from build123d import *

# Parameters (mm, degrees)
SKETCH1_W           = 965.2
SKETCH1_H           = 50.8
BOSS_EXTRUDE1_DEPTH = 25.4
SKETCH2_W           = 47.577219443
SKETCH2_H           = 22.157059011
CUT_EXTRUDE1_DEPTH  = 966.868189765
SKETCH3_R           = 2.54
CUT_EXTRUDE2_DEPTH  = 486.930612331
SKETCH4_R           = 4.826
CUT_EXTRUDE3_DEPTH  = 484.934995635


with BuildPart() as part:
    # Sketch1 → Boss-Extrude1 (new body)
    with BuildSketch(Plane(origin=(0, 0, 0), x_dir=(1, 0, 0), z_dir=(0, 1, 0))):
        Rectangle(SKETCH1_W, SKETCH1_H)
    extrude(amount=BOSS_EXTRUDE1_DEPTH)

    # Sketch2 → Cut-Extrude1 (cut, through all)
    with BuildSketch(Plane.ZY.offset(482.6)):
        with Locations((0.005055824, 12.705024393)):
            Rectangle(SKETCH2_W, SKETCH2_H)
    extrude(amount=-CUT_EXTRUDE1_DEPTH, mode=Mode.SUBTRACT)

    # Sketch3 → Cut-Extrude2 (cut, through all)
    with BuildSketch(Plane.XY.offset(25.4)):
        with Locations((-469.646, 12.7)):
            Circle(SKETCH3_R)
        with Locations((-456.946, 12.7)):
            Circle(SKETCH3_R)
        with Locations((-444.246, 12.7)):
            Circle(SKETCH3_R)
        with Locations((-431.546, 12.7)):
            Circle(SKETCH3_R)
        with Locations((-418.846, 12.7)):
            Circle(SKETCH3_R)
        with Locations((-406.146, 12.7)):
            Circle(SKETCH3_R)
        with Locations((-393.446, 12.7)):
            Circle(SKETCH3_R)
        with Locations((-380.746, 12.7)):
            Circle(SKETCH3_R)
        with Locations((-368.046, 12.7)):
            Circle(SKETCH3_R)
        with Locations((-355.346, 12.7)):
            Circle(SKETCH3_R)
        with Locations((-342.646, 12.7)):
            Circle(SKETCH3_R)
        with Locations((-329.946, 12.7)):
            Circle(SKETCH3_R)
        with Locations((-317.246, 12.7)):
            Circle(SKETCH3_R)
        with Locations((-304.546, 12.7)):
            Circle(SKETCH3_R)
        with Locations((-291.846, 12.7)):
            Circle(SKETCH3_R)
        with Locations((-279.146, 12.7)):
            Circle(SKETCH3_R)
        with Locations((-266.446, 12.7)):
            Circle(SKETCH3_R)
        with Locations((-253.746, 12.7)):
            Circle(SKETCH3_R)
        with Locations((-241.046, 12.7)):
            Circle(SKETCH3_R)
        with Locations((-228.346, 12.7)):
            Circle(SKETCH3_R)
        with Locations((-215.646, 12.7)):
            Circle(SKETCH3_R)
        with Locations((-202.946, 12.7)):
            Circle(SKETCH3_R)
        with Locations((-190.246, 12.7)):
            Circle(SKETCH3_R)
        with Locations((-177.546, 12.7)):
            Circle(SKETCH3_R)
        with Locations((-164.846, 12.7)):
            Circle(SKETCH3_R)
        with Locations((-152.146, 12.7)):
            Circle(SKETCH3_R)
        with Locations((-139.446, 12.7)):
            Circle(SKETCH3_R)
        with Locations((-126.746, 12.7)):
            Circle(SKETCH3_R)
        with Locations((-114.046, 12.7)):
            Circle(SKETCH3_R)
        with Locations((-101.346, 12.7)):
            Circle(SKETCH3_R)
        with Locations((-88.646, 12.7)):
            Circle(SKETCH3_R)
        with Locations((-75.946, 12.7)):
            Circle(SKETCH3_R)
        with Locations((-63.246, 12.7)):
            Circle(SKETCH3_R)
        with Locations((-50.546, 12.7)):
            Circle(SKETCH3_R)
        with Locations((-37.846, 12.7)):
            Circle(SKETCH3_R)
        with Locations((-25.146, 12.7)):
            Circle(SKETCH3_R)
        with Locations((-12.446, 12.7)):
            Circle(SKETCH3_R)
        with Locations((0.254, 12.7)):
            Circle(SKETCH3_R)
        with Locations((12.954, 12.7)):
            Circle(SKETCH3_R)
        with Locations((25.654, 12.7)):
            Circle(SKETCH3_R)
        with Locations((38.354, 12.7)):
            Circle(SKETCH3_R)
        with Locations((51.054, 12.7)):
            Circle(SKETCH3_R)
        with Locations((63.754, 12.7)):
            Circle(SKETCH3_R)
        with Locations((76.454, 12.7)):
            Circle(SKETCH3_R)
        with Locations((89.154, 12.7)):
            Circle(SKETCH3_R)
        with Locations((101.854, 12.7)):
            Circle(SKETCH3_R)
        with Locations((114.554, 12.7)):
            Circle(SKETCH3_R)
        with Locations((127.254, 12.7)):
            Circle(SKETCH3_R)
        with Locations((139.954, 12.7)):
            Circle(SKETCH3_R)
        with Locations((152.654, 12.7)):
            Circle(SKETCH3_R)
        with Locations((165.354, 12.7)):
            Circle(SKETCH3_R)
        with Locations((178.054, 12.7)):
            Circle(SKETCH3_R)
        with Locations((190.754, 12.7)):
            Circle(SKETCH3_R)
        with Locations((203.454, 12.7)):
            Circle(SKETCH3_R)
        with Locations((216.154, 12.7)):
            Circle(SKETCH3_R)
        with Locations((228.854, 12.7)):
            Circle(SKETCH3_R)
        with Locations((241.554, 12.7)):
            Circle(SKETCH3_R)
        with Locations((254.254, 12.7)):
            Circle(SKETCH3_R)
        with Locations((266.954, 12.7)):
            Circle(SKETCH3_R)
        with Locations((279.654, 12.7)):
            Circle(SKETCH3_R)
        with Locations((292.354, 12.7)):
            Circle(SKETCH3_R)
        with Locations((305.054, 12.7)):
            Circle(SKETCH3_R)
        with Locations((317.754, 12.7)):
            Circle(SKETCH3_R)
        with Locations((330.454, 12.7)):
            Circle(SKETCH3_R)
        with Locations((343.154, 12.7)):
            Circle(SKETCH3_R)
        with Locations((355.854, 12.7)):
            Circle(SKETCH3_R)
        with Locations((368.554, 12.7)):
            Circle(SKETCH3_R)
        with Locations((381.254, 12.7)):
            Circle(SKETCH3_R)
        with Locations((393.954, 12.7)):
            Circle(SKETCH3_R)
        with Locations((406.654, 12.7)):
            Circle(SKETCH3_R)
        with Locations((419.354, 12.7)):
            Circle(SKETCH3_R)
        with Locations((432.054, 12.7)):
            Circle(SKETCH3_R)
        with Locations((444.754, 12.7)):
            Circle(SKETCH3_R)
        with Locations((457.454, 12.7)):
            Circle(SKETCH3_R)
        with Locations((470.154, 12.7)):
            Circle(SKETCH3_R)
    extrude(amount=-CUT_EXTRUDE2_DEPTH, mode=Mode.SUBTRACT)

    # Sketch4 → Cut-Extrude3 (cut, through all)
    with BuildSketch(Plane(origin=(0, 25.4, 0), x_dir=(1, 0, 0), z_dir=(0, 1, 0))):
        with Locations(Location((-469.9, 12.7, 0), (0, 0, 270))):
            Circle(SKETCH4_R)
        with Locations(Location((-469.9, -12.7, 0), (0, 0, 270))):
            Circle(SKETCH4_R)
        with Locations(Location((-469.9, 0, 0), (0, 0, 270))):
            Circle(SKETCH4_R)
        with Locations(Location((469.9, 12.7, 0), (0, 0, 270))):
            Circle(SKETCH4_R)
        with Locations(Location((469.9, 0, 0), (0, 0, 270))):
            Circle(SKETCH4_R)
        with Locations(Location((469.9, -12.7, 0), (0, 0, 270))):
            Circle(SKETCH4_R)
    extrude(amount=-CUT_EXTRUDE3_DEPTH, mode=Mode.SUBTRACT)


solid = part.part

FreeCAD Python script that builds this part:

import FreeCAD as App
import Part
import Sketcher
Q = App.Units.Quantity

doc = App.newDocument("Part")
params = doc.addObject("Spreadsheet::Sheet", "Params")
for row, (alias, value) in enumerate([
    ("sketch1_width", "38 in"),
    ("sketch1_height", "2 in"),
    ("pad1_length", "1 in"),
    ("sketch3_diameter", "0.2 in"),
    ("sketch4_diameter", "0.38 in"),
], start=1):
    params.set(f"A{row}", alias)
    params.set(f"B{row}", "=" + value)
    params.setAlias(f"B{row}", alias)

body = doc.addObject("PartDesign::Body", "Body")

# Sketch on XZ plane
sketch1 = doc.addObject("Sketcher::SketchObject", "Sketch")
body.addObject(sketch1)
sketch1.AttachmentSupport = (doc.XZ_Plane, [""])
sketch1.MapMode = "FlatFace"
sketch1.addGeometry([
    Part.LineSegment(App.Vector(-483, -25, 0), App.Vector(-483, 25, 0)),
    Part.LineSegment(App.Vector(-483, 25, 0), App.Vector(483, 25, 0)),
    Part.LineSegment(App.Vector(483, 25, 0), App.Vector(483, -25, 0)),
    Part.LineSegment(App.Vector(483, -25, 0), App.Vector(-483, -25, 0)),
], False)
sketch1.addConstraint([
    Sketcher.Constraint("Coincident", 0, 2, 1, 1),
    Sketcher.Constraint("Coincident", 1, 2, 2, 1),
    Sketcher.Constraint("Coincident", 2, 2, 3, 1),
    Sketcher.Constraint("Coincident", 3, 2, 0, 1),
    Sketcher.Constraint("Vertical", 0),
    Sketcher.Constraint("Horizontal", 1),
    Sketcher.Constraint("Vertical", 2),
    Sketcher.Constraint("Horizontal", 3),
    Sketcher.Constraint("Symmetric", 0, 2, 2, 2, -1, 1),
    Sketcher.Constraint("DistanceX", 1, 1, 1, 2, Q("38 in")),
    Sketcher.Constraint("DistanceY", 0, 1, 0, 2, Q("2 in")),
])
sketch1.setExpression("Constraints[9]", "Params.sketch1_width")
sketch1.setExpression("Constraints[10]", "Params.sketch1_height")
pad1 = doc.addObject("PartDesign::Pad", "Pad")
body.addObject(pad1)
pad1.Profile = sketch1
pad1.setExpression("Length", "Params.pad1_length")
pad1.Reversed = True

# Sketch on YZ plane
sketch2 = doc.addObject("Sketcher::SketchObject", "Sketch001")
body.addObject(sketch2)
sketch2.AttachmentSupport = (doc.YZ_Plane, [""])
sketch2.MapMode = "FlatFace"
sketch2.AttachmentOffset = App.Placement(App.Vector(0, 0, -19 * 25.4), App.Rotation())
sketch2.addGeometry([
    Part.LineSegment(App.Vector(24, -24, 0), App.Vector(2, -24, 0)),
    Part.LineSegment(App.Vector(2, -24, 0), App.Vector(2, 24, 0)),
    Part.LineSegment(App.Vector(2, 24, 0), App.Vector(24, 24, 0)),
    Part.LineSegment(App.Vector(24, 24, 0), App.Vector(24, -24, 0)),
], False)
sketch2.addConstraint([
    Sketcher.Constraint("Coincident", 0, 2, 1, 1),
    Sketcher.Constraint("Coincident", 1, 2, 2, 1),
    Sketcher.Constraint("Coincident", 2, 2, 3, 1),
    Sketcher.Constraint("Coincident", 3, 2, 0, 1),
    Sketcher.Constraint("Horizontal", 0),
    Sketcher.Constraint("Vertical", 1),
    Sketcher.Constraint("Horizontal", 2),
    Sketcher.Constraint("Vertical", 3),
    Sketcher.Constraint("DistanceX", 0, 2, 0, 1, 22.157059),
    Sketcher.Constraint("DistanceY", 1, 1, 1, 2, 47.577219),
    Sketcher.Constraint("DistanceX", -1, 1, 0, 2, 1.626495),
    Sketcher.Constraint("DistanceY", 0, 2, -1, 1, 23.783554),
])
pocket1 = doc.addObject("PartDesign::Pocket", "Pocket")
body.addObject(pocket1)
pocket1.Profile = sketch2
pocket1.Type = "ThroughAll"
pocket1.Reversed = True

# Sketch on XY plane
sketch3 = doc.addObject("Sketcher::SketchObject", "Sketch002")
body.addObject(sketch3)
sketch3.AttachmentSupport = (doc.XY_Plane, [""])
sketch3.MapMode = "FlatFace"
sketch3.AttachmentOffset = App.Placement(App.Vector(0, 0, 1 * 25.4), App.Rotation())
sketch3.addGeometry([
    Part.Circle(App.Vector(-469.6, 12.7, 0), App.Vector(0, 0, 1), 2.5),  # 0
    Part.Circle(App.Vector(-456.9, 12.7, 0), App.Vector(0, 0, 1), 2.5),  # 1
    Part.Circle(App.Vector(-444.2, 12.7, 0), App.Vector(0, 0, 1), 2.5),  # 2
    Part.Circle(App.Vector(-431.5, 12.7, 0), App.Vector(0, 0, 1), 2.5),  # 3
    Part.Circle(App.Vector(-418.8, 12.7, 0), App.Vector(0, 0, 1), 2.5),  # 4
    Part.Circle(App.Vector(-406.1, 12.7, 0), App.Vector(0, 0, 1), 2.5),  # 5
    Part.Circle(App.Vector(-393.4, 12.7, 0), App.Vector(0, 0, 1), 2.5),  # 6
    Part.Circle(App.Vector(-380.7, 12.7, 0), App.Vector(0, 0, 1), 2.5),  # 7
    Part.Circle(App.Vector(-368, 12.7, 0), App.Vector(0, 0, 1), 2.5),  # 8
    Part.Circle(App.Vector(-355.3, 12.7, 0), App.Vector(0, 0, 1), 2.5),  # 9
    Part.Circle(App.Vector(-342.6, 12.7, 0), App.Vector(0, 0, 1), 2.5),  # 10
    Part.Circle(App.Vector(-329.9, 12.7, 0), App.Vector(0, 0, 1), 2.5),  # 11
    Part.Circle(App.Vector(-317.2, 12.7, 0), App.Vector(0, 0, 1), 2.5),  # 12
    Part.Circle(App.Vector(-304.5, 12.7, 0), App.Vector(0, 0, 1), 2.5),  # 13
    Part.Circle(App.Vector(-291.8, 12.7, 0), App.Vector(0, 0, 1), 2.5),  # 14
    Part.Circle(App.Vector(-279.1, 12.7, 0), App.Vector(0, 0, 1), 2.5),  # 15
    Part.Circle(App.Vector(-266.4, 12.7, 0), App.Vector(0, 0, 1), 2.5),  # 16
    Part.Circle(App.Vector(-253.7, 12.7, 0), App.Vector(0, 0, 1), 2.5),  # 17
    Part.Circle(App.Vector(-241, 12.7, 0), App.Vector(0, 0, 1), 2.5),  # 18
    Part.Circle(App.Vector(-228.3, 12.7, 0), App.Vector(0, 0, 1), 2.5),  # 19
    Part.Circle(App.Vector(-215.6, 12.7, 0), App.Vector(0, 0, 1), 2.5),  # 20
    Part.Circle(App.Vector(-202.9, 12.7, 0), App.Vector(0, 0, 1), 2.5),  # 21
    Part.Circle(App.Vector(-190.2, 12.7, 0), App.Vector(0, 0, 1), 2.5),  # 22
    Part.Circle(App.Vector(-177.5, 12.7, 0), App.Vector(0, 0, 1), 2.5),  # 23
    Part.Circle(App.Vector(-164.8, 12.7, 0), App.Vector(0, 0, 1), 2.5),  # 24
    Part.Circle(App.Vector(-152.1, 12.7, 0), App.Vector(0, 0, 1), 2.5),  # 25
    Part.Circle(App.Vector(-139.4, 12.7, 0), App.Vector(0, 0, 1), 2.5),  # 26
    Part.Circle(App.Vector(-126.7, 12.7, 0), App.Vector(0, 0, 1), 2.5),  # 27
    Part.Circle(App.Vector(-114, 12.7, 0), App.Vector(0, 0, 1), 2.5),  # 28
    Part.Circle(App.Vector(-101.3, 12.7, 0), App.Vector(0, 0, 1), 2.5),  # 29
    Part.Circle(App.Vector(-88.6, 12.7, 0), App.Vector(0, 0, 1), 2.5),  # 30
    Part.Circle(App.Vector(-75.9, 12.7, 0), App.Vector(0, 0, 1), 2.5),  # 31
    Part.Circle(App.Vector(-63.2, 12.7, 0), App.Vector(0, 0, 1), 2.5),  # 32
    Part.Circle(App.Vector(-50.5, 12.7, 0), App.Vector(0, 0, 1), 2.5),  # 33
    Part.Circle(App.Vector(-37.8, 12.7, 0), App.Vector(0, 0, 1), 2.5),  # 34
    Part.Circle(App.Vector(-25.1, 12.7, 0), App.Vector(0, 0, 1), 2.5),  # 35
    Part.Circle(App.Vector(-12.4, 12.7, 0), App.Vector(0, 0, 1), 2.5),  # 36
    Part.Circle(App.Vector(0.3, 12.7, 0), App.Vector(0, 0, 1), 2.5),  # 37
    Part.Circle(App.Vector(13, 12.7, 0), App.Vector(0, 0, 1), 2.5),  # 38
    Part.Circle(App.Vector(25.7, 12.7, 0), App.Vector(0, 0, 1), 2.5),  # 39
    Part.Circle(App.Vector(38.4, 12.7, 0), App.Vector(0, 0, 1), 2.5),  # 40
    Part.Circle(App.Vector(51.1, 12.7, 0), App.Vector(0, 0, 1), 2.5),  # 41
    Part.Circle(App.Vector(63.8, 12.7, 0), App.Vector(0, 0, 1), 2.5),  # 42
    Part.Circle(App.Vector(76.5, 12.7, 0), App.Vector(0, 0, 1), 2.5),  # 43
    Part.Circle(App.Vector(89.2, 12.7, 0), App.Vector(0, 0, 1), 2.5),  # 44
    Part.Circle(App.Vector(101.9, 12.7, 0), App.Vector(0, 0, 1), 2.5),  # 45
    Part.Circle(App.Vector(114.6, 12.7, 0), App.Vector(0, 0, 1), 2.5),  # 46
    Part.Circle(App.Vector(127.3, 12.7, 0), App.Vector(0, 0, 1), 2.5),  # 47
    Part.Circle(App.Vector(140, 12.7, 0), App.Vector(0, 0, 1), 2.5),  # 48
    Part.Circle(App.Vector(152.7, 12.7, 0), App.Vector(0, 0, 1), 2.5),  # 49
    Part.Circle(App.Vector(165.4, 12.7, 0), App.Vector(0, 0, 1), 2.5),  # 50
    Part.Circle(App.Vector(178.1, 12.7, 0), App.Vector(0, 0, 1), 2.5),  # 51
    Part.Circle(App.Vector(190.8, 12.7, 0), App.Vector(0, 0, 1), 2.5),  # 52
    Part.Circle(App.Vector(203.5, 12.7, 0), App.Vector(0, 0, 1), 2.5),  # 53
    Part.Circle(App.Vector(216.2, 12.7, 0), App.Vector(0, 0, 1), 2.5),  # 54
    Part.Circle(App.Vector(228.9, 12.7, 0), App.Vector(0, 0, 1), 2.5),  # 55
    Part.Circle(App.Vector(241.6, 12.7, 0), App.Vector(0, 0, 1), 2.5),  # 56
    Part.Circle(App.Vector(254.3, 12.7, 0), App.Vector(0, 0, 1), 2.5),  # 57
    Part.Circle(App.Vector(267, 12.7, 0), App.Vector(0, 0, 1), 2.5),  # 58
    Part.Circle(App.Vector(279.7, 12.7, 0), App.Vector(0, 0, 1), 2.5),  # 59
    Part.Circle(App.Vector(292.4, 12.7, 0), App.Vector(0, 0, 1), 2.5),  # 60
    Part.Circle(App.Vector(305.1, 12.7, 0), App.Vector(0, 0, 1), 2.5),  # 61
    Part.Circle(App.Vector(317.8, 12.7, 0), App.Vector(0, 0, 1), 2.5),  # 62
    Part.Circle(App.Vector(330.5, 12.7, 0), App.Vector(0, 0, 1), 2.5),  # 63
    Part.Circle(App.Vector(343.2, 12.7, 0), App.Vector(0, 0, 1), 2.5),  # 64
    Part.Circle(App.Vector(355.9, 12.7, 0), App.Vector(0, 0, 1), 2.5),  # 65
    Part.Circle(App.Vector(368.6, 12.7, 0), App.Vector(0, 0, 1), 2.5),  # 66
    Part.Circle(App.Vector(381.3, 12.7, 0), App.Vector(0, 0, 1), 2.5),  # 67
    Part.Circle(App.Vector(394, 12.7, 0), App.Vector(0, 0, 1), 2.5),  # 68
    Part.Circle(App.Vector(406.7, 12.7, 0), App.Vector(0, 0, 1), 2.5),  # 69
    Part.Circle(App.Vector(419.4, 12.7, 0), App.Vector(0, 0, 1), 2.5),  # 70
    Part.Circle(App.Vector(432.1, 12.7, 0), App.Vector(0, 0, 1), 2.5),  # 71
    Part.Circle(App.Vector(444.8, 12.7, 0), App.Vector(0, 0, 1), 2.5),  # 72
    Part.Circle(App.Vector(457.5, 12.7, 0), App.Vector(0, 0, 1), 2.5),  # 73
    Part.Circle(App.Vector(470.2, 12.7, 0), App.Vector(0, 0, 1), 2.5),  # 74
], False)
sketch3.addConstraint([
    Sketcher.Constraint("Equal", 0, 1),
    Sketcher.Constraint("Equal", 1, 2),
    Sketcher.Constraint("Equal", 2, 3),
    Sketcher.Constraint("Equal", 3, 4),
    Sketcher.Constraint("Equal", 4, 5),
    Sketcher.Constraint("Equal", 5, 6),
    Sketcher.Constraint("Equal", 6, 7),
    Sketcher.Constraint("Equal", 7, 8),
    Sketcher.Constraint("Equal", 8, 9),
    Sketcher.Constraint("Equal", 9, 10),
    Sketcher.Constraint("Equal", 10, 11),
    Sketcher.Constraint("Equal", 11, 12),
    Sketcher.Constraint("Equal", 12, 13),
    Sketcher.Constraint("Equal", 13, 14),
    Sketcher.Constraint("Equal", 14, 15),
    Sketcher.Constraint("Equal", 15, 16),
    Sketcher.Constraint("Equal", 16, 17),
    Sketcher.Constraint("Equal", 17, 18),
    Sketcher.Constraint("Equal", 18, 19),
    Sketcher.Constraint("Equal", 19, 20),
    Sketcher.Constraint("Equal", 20, 21),
    Sketcher.Constraint("Equal", 21, 22),
    Sketcher.Constraint("Equal", 22, 23),
    Sketcher.Constraint("Equal", 23, 24),
    Sketcher.Constraint("Equal", 24, 25),
    Sketcher.Constraint("Equal", 25, 26),
    Sketcher.Constraint("Equal", 26, 27),
    Sketcher.Constraint("Equal", 27, 28),
    Sketcher.Constraint("Equal", 28, 29),
    Sketcher.Constraint("Equal", 29, 30),
    Sketcher.Constraint("Equal", 30, 31),
    Sketcher.Constraint("Equal", 31, 32),
    Sketcher.Constraint("Equal", 32, 33),
    Sketcher.Constraint("Equal", 33, 34),
    Sketcher.Constraint("Equal", 34, 35),
    Sketcher.Constraint("Equal", 35, 36),
    Sketcher.Constraint("Equal", 36, 37),
    Sketcher.Constraint("Equal", 37, 38),
    Sketcher.Constraint("Equal", 38, 39),
    Sketcher.Constraint("Equal", 39, 40),
    Sketcher.Constraint("Equal", 40, 41),
    Sketcher.Constraint("Equal", 41, 42),
    Sketcher.Constraint("Equal", 42, 43),
    Sketcher.Constraint("Equal", 43, 44),
    Sketcher.Constraint("Equal", 44, 45),
    Sketcher.Constraint("Equal", 45, 46),
    Sketcher.Constraint("Equal", 46, 47),
    Sketcher.Constraint("Equal", 47, 48),
    Sketcher.Constraint("Equal", 48, 49),
    Sketcher.Constraint("Equal", 49, 50),
    Sketcher.Constraint("Equal", 50, 51),
    Sketcher.Constraint("Equal", 51, 52),
    Sketcher.Constraint("Equal", 52, 53),
    Sketcher.Constraint("Equal", 53, 54),
    Sketcher.Constraint("Equal", 54, 55),
    Sketcher.Constraint("Equal", 55, 56),
    Sketcher.Constraint("Equal", 56, 57),
    Sketcher.Constraint("Equal", 57, 58),
    Sketcher.Constraint("Equal", 58, 59),
    Sketcher.Constraint("Equal", 59, 60),
    Sketcher.Constraint("Equal", 60, 61),
    Sketcher.Constraint("Equal", 61, 62),
    Sketcher.Constraint("Equal", 62, 63),
    Sketcher.Constraint("Equal", 63, 64),
    Sketcher.Constraint("Equal", 64, 65),
    Sketcher.Constraint("Equal", 65, 66),
    Sketcher.Constraint("Equal", 66, 67),
    Sketcher.Constraint("Equal", 67, 68),
    Sketcher.Constraint("Equal", 68, 69),
    Sketcher.Constraint("Equal", 69, 70),
    Sketcher.Constraint("Equal", 70, 71),
    Sketcher.Constraint("Equal", 71, 72),
    Sketcher.Constraint("Equal", 72, 73),
    Sketcher.Constraint("Equal", 73, 74),
    Sketcher.Constraint("Horizontal", 0, 3, 1, 3),
    Sketcher.Constraint("Horizontal", 1, 3, 2, 3),
    Sketcher.Constraint("Horizontal", 2, 3, 3, 3),
    Sketcher.Constraint("Horizontal", 3, 3, 4, 3),
    Sketcher.Constraint("Horizontal", 4, 3, 5, 3),
    Sketcher.Constraint("Horizontal", 5, 3, 6, 3),
    Sketcher.Constraint("Horizontal", 6, 3, 7, 3),
    Sketcher.Constraint("Horizontal", 7, 3, 8, 3),
    Sketcher.Constraint("Horizontal", 8, 3, 9, 3),
    Sketcher.Constraint("Horizontal", 9, 3, 10, 3),
    Sketcher.Constraint("Horizontal", 10, 3, 11, 3),
    Sketcher.Constraint("Horizontal", 11, 3, 12, 3),
    Sketcher.Constraint("Horizontal", 12, 3, 13, 3),
    Sketcher.Constraint("Horizontal", 13, 3, 14, 3),
    Sketcher.Constraint("Horizontal", 14, 3, 15, 3),
    Sketcher.Constraint("Horizontal", 15, 3, 16, 3),
    Sketcher.Constraint("Horizontal", 16, 3, 17, 3),
    Sketcher.Constraint("Horizontal", 17, 3, 18, 3),
    Sketcher.Constraint("Horizontal", 18, 3, 19, 3),
    Sketcher.Constraint("Horizontal", 19, 3, 20, 3),
    Sketcher.Constraint("Horizontal", 20, 3, 21, 3),
    Sketcher.Constraint("Horizontal", 21, 3, 22, 3),
    Sketcher.Constraint("Horizontal", 22, 3, 23, 3),
    Sketcher.Constraint("Horizontal", 23, 3, 24, 3),
    Sketcher.Constraint("Horizontal", 24, 3, 25, 3),
    Sketcher.Constraint("Horizontal", 25, 3, 26, 3),
    Sketcher.Constraint("Horizontal", 26, 3, 27, 3),
    Sketcher.Constraint("Horizontal", 27, 3, 28, 3),
    Sketcher.Constraint("Horizontal", 28, 3, 29, 3),
    Sketcher.Constraint("Horizontal", 29, 3, 30, 3),
    Sketcher.Constraint("Horizontal", 30, 3, 31, 3),
    Sketcher.Constraint("Horizontal", 31, 3, 32, 3),
    Sketcher.Constraint("Horizontal", 32, 3, 33, 3),
    Sketcher.Constraint("Horizontal", 33, 3, 34, 3),
    Sketcher.Constraint("Horizontal", 34, 3, 35, 3),
    Sketcher.Constraint("Horizontal", 35, 3, 36, 3),
    Sketcher.Constraint("Horizontal", 36, 3, 37, 3),
    Sketcher.Constraint("Horizontal", 37, 3, 38, 3),
    Sketcher.Constraint("Horizontal", 38, 3, 39, 3),
    Sketcher.Constraint("Horizontal", 39, 3, 40, 3),
    Sketcher.Constraint("Horizontal", 40, 3, 41, 3),
    Sketcher.Constraint("Horizontal", 41, 3, 42, 3),
    Sketcher.Constraint("Horizontal", 42, 3, 43, 3),
    Sketcher.Constraint("Horizontal", 43, 3, 44, 3),
    Sketcher.Constraint("Horizontal", 44, 3, 45, 3),
    Sketcher.Constraint("Horizontal", 45, 3, 46, 3),
    Sketcher.Constraint("Horizontal", 46, 3, 47, 3),
    Sketcher.Constraint("Horizontal", 47, 3, 48, 3),
    Sketcher.Constraint("Horizontal", 48, 3, 49, 3),
    Sketcher.Constraint("Horizontal", 49, 3, 50, 3),
    Sketcher.Constraint("Horizontal", 50, 3, 51, 3),
    Sketcher.Constraint("Horizontal", 51, 3, 52, 3),
    Sketcher.Constraint("Horizontal", 52, 3, 53, 3),
    Sketcher.Constraint("Horizontal", 53, 3, 54, 3),
    Sketcher.Constraint("Horizontal", 54, 3, 55, 3),
    Sketcher.Constraint("Horizontal", 55, 3, 56, 3),
    Sketcher.Constraint("Horizontal", 56, 3, 57, 3),
    Sketcher.Constraint("Horizontal", 57, 3, 58, 3),
    Sketcher.Constraint("Horizontal", 58, 3, 59, 3),
    Sketcher.Constraint("Horizontal", 59, 3, 60, 3),
    Sketcher.Constraint("Horizontal", 60, 3, 61, 3),
    Sketcher.Constraint("Horizontal", 61, 3, 62, 3),
    Sketcher.Constraint("Horizontal", 62, 3, 63, 3),
    Sketcher.Constraint("Horizontal", 63, 3, 64, 3),
    Sketcher.Constraint("Horizontal", 64, 3, 65, 3),
    Sketcher.Constraint("Horizontal", 65, 3, 66, 3),
    Sketcher.Constraint("Horizontal", 66, 3, 67, 3),
    Sketcher.Constraint("Horizontal", 67, 3, 68, 3),
    Sketcher.Constraint("Horizontal", 68, 3, 69, 3),
    Sketcher.Constraint("Horizontal", 69, 3, 70, 3),
    Sketcher.Constraint("Horizontal", 70, 3, 71, 3),
    Sketcher.Constraint("Horizontal", 71, 3, 72, 3),
    Sketcher.Constraint("Horizontal", 72, 3, 73, 3),
    Sketcher.Constraint("Horizontal", 73, 3, 74, 3),
    Sketcher.Constraint("Diameter", 0, Q("0.2 in")),
    Sketcher.Constraint("DistanceY", -1, 1, 0, 3, Q("0.5 in")),
    Sketcher.Constraint("DistanceX", 0, 3, -1, 1, Q("18.49 in")),
    Sketcher.Constraint("DistanceX", 1, 3, -1, 1, Q("17.99 in")),
    Sketcher.Constraint("DistanceX", 2, 3, -1, 1, Q("17.49 in")),
    Sketcher.Constraint("DistanceX", 3, 3, -1, 1, Q("16.99 in")),
    Sketcher.Constraint("DistanceX", 4, 3, -1, 1, Q("16.49 in")),
    Sketcher.Constraint("DistanceX", 5, 3, -1, 1, Q("15.99 in")),
    Sketcher.Constraint("DistanceX", 6, 3, -1, 1, Q("15.49 in")),
    Sketcher.Constraint("DistanceX", 7, 3, -1, 1, Q("14.99 in")),
    Sketcher.Constraint("DistanceX", 8, 3, -1, 1, Q("14.49 in")),
    Sketcher.Constraint("DistanceX", 9, 3, -1, 1, Q("13.99 in")),
    Sketcher.Constraint("DistanceX", 10, 3, -1, 1, Q("13.49 in")),
    Sketcher.Constraint("DistanceX", 11, 3, -1, 1, Q("12.99 in")),
    Sketcher.Constraint("DistanceX", 12, 3, -1, 1, Q("12.49 in")),
    Sketcher.Constraint("DistanceX", 13, 3, -1, 1, Q("11.99 in")),
    Sketcher.Constraint("DistanceX", 14, 3, -1, 1, Q("11.49 in")),
    Sketcher.Constraint("DistanceX", 15, 3, -1, 1, Q("10.99 in")),
    Sketcher.Constraint("DistanceX", 16, 3, -1, 1, Q("10.49 in")),
    Sketcher.Constraint("DistanceX", 17, 3, -1, 1, Q("9.99 in")),
    Sketcher.Constraint("DistanceX", 18, 3, -1, 1, Q("9.49 in")),
    Sketcher.Constraint("DistanceX", 19, 3, -1, 1, Q("8.99 in")),
    Sketcher.Constraint("DistanceX", 20, 3, -1, 1, Q("8.49 in")),
    Sketcher.Constraint("DistanceX", 21, 3, -1, 1, Q("7.99 in")),
    Sketcher.Constraint("DistanceX", 22, 3, -1, 1, Q("7.49 in")),
    Sketcher.Constraint("DistanceX", 23, 3, -1, 1, Q("6.99 in")),
    Sketcher.Constraint("DistanceX", 24, 3, -1, 1, Q("6.49 in")),
    Sketcher.Constraint("DistanceX", 25, 3, -1, 1, Q("5.99 in")),
    Sketcher.Constraint("DistanceX", 26, 3, -1, 1, Q("5.49 in")),
    Sketcher.Constraint("DistanceX", 27, 3, -1, 1, Q("4.99 in")),
    Sketcher.Constraint("DistanceX", 28, 3, -1, 1, Q("4.49 in")),
    Sketcher.Constraint("DistanceX", 29, 3, -1, 1, Q("3.99 in")),
    Sketcher.Constraint("DistanceX", 30, 3, -1, 1, Q("3.49 in")),
    Sketcher.Constraint("DistanceX", 31, 3, -1, 1, Q("2.99 in")),
    Sketcher.Constraint("DistanceX", 32, 3, -1, 1, Q("2.49 in")),
    Sketcher.Constraint("DistanceX", 33, 3, -1, 1, Q("1.99 in")),
    Sketcher.Constraint("DistanceX", 34, 3, -1, 1, Q("1.49 in")),
    Sketcher.Constraint("DistanceX", 35, 3, -1, 1, Q("0.99 in")),
    Sketcher.Constraint("DistanceX", 36, 3, -1, 1, Q("0.49 in")),
    Sketcher.Constraint("DistanceX", -1, 1, 37, 3, Q("0.01 in")),
    Sketcher.Constraint("DistanceX", -1, 1, 38, 3, Q("0.51 in")),
    Sketcher.Constraint("DistanceX", -1, 1, 39, 3, Q("1.01 in")),
    Sketcher.Constraint("DistanceX", -1, 1, 40, 3, Q("1.51 in")),
    Sketcher.Constraint("DistanceX", -1, 1, 41, 3, Q("2.01 in")),
    Sketcher.Constraint("DistanceX", -1, 1, 42, 3, Q("2.51 in")),
    Sketcher.Constraint("DistanceX", -1, 1, 43, 3, Q("3.01 in")),
    Sketcher.Constraint("DistanceX", -1, 1, 44, 3, Q("3.51 in")),
    Sketcher.Constraint("DistanceX", -1, 1, 45, 3, Q("4.01 in")),
    Sketcher.Constraint("DistanceX", -1, 1, 46, 3, Q("4.51 in")),
    Sketcher.Constraint("DistanceX", -1, 1, 47, 3, Q("5.01 in")),
    Sketcher.Constraint("DistanceX", -1, 1, 48, 3, Q("5.51 in")),
    Sketcher.Constraint("DistanceX", -1, 1, 49, 3, Q("6.01 in")),
    Sketcher.Constraint("DistanceX", -1, 1, 50, 3, Q("6.51 in")),
    Sketcher.Constraint("DistanceX", -1, 1, 51, 3, Q("7.01 in")),
    Sketcher.Constraint("DistanceX", -1, 1, 52, 3, Q("7.51 in")),
    Sketcher.Constraint("DistanceX", -1, 1, 53, 3, Q("8.01 in")),
    Sketcher.Constraint("DistanceX", -1, 1, 54, 3, Q("8.51 in")),
    Sketcher.Constraint("DistanceX", -1, 1, 55, 3, Q("9.01 in")),
    Sketcher.Constraint("DistanceX", -1, 1, 56, 3, Q("9.51 in")),
    Sketcher.Constraint("DistanceX", -1, 1, 57, 3, Q("10.01 in")),
    Sketcher.Constraint("DistanceX", -1, 1, 58, 3, Q("10.51 in")),
    Sketcher.Constraint("DistanceX", -1, 1, 59, 3, Q("11.01 in")),
    Sketcher.Constraint("DistanceX", -1, 1, 60, 3, Q("11.51 in")),
    Sketcher.Constraint("DistanceX", -1, 1, 61, 3, Q("12.01 in")),
    Sketcher.Constraint("DistanceX", -1, 1, 62, 3, Q("12.51 in")),
    Sketcher.Constraint("DistanceX", -1, 1, 63, 3, Q("13.01 in")),
    Sketcher.Constraint("DistanceX", -1, 1, 64, 3, Q("13.51 in")),
    Sketcher.Constraint("DistanceX", -1, 1, 65, 3, Q("14.01 in")),
    Sketcher.Constraint("DistanceX", -1, 1, 66, 3, Q("14.51 in")),
    Sketcher.Constraint("DistanceX", -1, 1, 67, 3, Q("15.01 in")),
    Sketcher.Constraint("DistanceX", -1, 1, 68, 3, Q("15.51 in")),
    Sketcher.Constraint("DistanceX", -1, 1, 69, 3, Q("16.01 in")),
    Sketcher.Constraint("DistanceX", -1, 1, 70, 3, Q("16.51 in")),
    Sketcher.Constraint("DistanceX", -1, 1, 71, 3, Q("17.01 in")),
    Sketcher.Constraint("DistanceX", -1, 1, 72, 3, Q("17.51 in")),
    Sketcher.Constraint("DistanceX", -1, 1, 73, 3, Q("18.01 in")),
    Sketcher.Constraint("DistanceX", -1, 1, 74, 3, Q("18.51 in")),
])
sketch3.setExpression("Constraints[148]", "Params.sketch3_diameter")
pocket2 = doc.addObject("PartDesign::Pocket", "Pocket001")
body.addObject(pocket2)
pocket2.Profile = sketch3
pocket2.Type = "ThroughAll"

# Sketch on XZ plane
sketch4 = doc.addObject("Sketcher::SketchObject", "Sketch003")
body.addObject(sketch4)
sketch4.AttachmentSupport = (doc.XZ_Plane, [""])
sketch4.MapMode = "FlatFace"
sketch4.AttachmentOffset = App.Placement(App.Vector(0, 0, -1 * 25.4), App.Rotation())
sketch4.addGeometry([
    Part.Circle(App.Vector(-469.9, -12.7, 0), App.Vector(0, 0, 1), 4.8),  # 0
    Part.Circle(App.Vector(-469.9, 12.7, 0), App.Vector(0, 0, 1), 4.8),  # 1
    Part.Circle(App.Vector(-469.9, 0, 0), App.Vector(0, 0, 1), 4.8),  # 2
    Part.Circle(App.Vector(469.9, -12.7, 0), App.Vector(0, 0, 1), 4.8),  # 3
    Part.Circle(App.Vector(469.9, 0, 0), App.Vector(0, 0, 1), 4.8),  # 4
    Part.Circle(App.Vector(469.9, 12.7, 0), App.Vector(0, 0, 1), 4.8),  # 5
], False)
sketch4.addConstraint([
    Sketcher.Constraint("Equal", 0, 1),
    Sketcher.Constraint("Equal", 1, 2),
    Sketcher.Constraint("Equal", 2, 3),
    Sketcher.Constraint("Equal", 3, 4),
    Sketcher.Constraint("Equal", 4, 5),
    Sketcher.Constraint("Symmetric", 1, 3, 3, 3, -1, 1),
    Sketcher.Constraint("Symmetric", 2, 3, 4, 3, -1, 1),
    Sketcher.Constraint("Symmetric", 0, 3, 5, 3, -1, 1),
    Sketcher.Constraint("Symmetric", 0, 3, 3, 3, -2),
    Sketcher.Constraint("PointOnObject", 2, 3, -1),
    Sketcher.Constraint("Vertical", 1, 3, 2, 3),
    Sketcher.Constraint("Diameter", 0, Q("0.38 in")),
    Sketcher.Constraint("DistanceY", 0, 3, 1, 3, Q("1 in")),
    Sketcher.Constraint("DistanceX", 0, 3, 3, 3, Q("37 in")),
])
sketch4.setExpression("Constraints[11]", "Params.sketch4_diameter")
pocket3 = doc.addObject("PartDesign::Pocket", "Pocket002")
body.addObject(pocket3)
pocket3.Profile = sketch4
pocket3.Type = "ThroughAll"
pocket3.Reversed = True

doc.recompute()
